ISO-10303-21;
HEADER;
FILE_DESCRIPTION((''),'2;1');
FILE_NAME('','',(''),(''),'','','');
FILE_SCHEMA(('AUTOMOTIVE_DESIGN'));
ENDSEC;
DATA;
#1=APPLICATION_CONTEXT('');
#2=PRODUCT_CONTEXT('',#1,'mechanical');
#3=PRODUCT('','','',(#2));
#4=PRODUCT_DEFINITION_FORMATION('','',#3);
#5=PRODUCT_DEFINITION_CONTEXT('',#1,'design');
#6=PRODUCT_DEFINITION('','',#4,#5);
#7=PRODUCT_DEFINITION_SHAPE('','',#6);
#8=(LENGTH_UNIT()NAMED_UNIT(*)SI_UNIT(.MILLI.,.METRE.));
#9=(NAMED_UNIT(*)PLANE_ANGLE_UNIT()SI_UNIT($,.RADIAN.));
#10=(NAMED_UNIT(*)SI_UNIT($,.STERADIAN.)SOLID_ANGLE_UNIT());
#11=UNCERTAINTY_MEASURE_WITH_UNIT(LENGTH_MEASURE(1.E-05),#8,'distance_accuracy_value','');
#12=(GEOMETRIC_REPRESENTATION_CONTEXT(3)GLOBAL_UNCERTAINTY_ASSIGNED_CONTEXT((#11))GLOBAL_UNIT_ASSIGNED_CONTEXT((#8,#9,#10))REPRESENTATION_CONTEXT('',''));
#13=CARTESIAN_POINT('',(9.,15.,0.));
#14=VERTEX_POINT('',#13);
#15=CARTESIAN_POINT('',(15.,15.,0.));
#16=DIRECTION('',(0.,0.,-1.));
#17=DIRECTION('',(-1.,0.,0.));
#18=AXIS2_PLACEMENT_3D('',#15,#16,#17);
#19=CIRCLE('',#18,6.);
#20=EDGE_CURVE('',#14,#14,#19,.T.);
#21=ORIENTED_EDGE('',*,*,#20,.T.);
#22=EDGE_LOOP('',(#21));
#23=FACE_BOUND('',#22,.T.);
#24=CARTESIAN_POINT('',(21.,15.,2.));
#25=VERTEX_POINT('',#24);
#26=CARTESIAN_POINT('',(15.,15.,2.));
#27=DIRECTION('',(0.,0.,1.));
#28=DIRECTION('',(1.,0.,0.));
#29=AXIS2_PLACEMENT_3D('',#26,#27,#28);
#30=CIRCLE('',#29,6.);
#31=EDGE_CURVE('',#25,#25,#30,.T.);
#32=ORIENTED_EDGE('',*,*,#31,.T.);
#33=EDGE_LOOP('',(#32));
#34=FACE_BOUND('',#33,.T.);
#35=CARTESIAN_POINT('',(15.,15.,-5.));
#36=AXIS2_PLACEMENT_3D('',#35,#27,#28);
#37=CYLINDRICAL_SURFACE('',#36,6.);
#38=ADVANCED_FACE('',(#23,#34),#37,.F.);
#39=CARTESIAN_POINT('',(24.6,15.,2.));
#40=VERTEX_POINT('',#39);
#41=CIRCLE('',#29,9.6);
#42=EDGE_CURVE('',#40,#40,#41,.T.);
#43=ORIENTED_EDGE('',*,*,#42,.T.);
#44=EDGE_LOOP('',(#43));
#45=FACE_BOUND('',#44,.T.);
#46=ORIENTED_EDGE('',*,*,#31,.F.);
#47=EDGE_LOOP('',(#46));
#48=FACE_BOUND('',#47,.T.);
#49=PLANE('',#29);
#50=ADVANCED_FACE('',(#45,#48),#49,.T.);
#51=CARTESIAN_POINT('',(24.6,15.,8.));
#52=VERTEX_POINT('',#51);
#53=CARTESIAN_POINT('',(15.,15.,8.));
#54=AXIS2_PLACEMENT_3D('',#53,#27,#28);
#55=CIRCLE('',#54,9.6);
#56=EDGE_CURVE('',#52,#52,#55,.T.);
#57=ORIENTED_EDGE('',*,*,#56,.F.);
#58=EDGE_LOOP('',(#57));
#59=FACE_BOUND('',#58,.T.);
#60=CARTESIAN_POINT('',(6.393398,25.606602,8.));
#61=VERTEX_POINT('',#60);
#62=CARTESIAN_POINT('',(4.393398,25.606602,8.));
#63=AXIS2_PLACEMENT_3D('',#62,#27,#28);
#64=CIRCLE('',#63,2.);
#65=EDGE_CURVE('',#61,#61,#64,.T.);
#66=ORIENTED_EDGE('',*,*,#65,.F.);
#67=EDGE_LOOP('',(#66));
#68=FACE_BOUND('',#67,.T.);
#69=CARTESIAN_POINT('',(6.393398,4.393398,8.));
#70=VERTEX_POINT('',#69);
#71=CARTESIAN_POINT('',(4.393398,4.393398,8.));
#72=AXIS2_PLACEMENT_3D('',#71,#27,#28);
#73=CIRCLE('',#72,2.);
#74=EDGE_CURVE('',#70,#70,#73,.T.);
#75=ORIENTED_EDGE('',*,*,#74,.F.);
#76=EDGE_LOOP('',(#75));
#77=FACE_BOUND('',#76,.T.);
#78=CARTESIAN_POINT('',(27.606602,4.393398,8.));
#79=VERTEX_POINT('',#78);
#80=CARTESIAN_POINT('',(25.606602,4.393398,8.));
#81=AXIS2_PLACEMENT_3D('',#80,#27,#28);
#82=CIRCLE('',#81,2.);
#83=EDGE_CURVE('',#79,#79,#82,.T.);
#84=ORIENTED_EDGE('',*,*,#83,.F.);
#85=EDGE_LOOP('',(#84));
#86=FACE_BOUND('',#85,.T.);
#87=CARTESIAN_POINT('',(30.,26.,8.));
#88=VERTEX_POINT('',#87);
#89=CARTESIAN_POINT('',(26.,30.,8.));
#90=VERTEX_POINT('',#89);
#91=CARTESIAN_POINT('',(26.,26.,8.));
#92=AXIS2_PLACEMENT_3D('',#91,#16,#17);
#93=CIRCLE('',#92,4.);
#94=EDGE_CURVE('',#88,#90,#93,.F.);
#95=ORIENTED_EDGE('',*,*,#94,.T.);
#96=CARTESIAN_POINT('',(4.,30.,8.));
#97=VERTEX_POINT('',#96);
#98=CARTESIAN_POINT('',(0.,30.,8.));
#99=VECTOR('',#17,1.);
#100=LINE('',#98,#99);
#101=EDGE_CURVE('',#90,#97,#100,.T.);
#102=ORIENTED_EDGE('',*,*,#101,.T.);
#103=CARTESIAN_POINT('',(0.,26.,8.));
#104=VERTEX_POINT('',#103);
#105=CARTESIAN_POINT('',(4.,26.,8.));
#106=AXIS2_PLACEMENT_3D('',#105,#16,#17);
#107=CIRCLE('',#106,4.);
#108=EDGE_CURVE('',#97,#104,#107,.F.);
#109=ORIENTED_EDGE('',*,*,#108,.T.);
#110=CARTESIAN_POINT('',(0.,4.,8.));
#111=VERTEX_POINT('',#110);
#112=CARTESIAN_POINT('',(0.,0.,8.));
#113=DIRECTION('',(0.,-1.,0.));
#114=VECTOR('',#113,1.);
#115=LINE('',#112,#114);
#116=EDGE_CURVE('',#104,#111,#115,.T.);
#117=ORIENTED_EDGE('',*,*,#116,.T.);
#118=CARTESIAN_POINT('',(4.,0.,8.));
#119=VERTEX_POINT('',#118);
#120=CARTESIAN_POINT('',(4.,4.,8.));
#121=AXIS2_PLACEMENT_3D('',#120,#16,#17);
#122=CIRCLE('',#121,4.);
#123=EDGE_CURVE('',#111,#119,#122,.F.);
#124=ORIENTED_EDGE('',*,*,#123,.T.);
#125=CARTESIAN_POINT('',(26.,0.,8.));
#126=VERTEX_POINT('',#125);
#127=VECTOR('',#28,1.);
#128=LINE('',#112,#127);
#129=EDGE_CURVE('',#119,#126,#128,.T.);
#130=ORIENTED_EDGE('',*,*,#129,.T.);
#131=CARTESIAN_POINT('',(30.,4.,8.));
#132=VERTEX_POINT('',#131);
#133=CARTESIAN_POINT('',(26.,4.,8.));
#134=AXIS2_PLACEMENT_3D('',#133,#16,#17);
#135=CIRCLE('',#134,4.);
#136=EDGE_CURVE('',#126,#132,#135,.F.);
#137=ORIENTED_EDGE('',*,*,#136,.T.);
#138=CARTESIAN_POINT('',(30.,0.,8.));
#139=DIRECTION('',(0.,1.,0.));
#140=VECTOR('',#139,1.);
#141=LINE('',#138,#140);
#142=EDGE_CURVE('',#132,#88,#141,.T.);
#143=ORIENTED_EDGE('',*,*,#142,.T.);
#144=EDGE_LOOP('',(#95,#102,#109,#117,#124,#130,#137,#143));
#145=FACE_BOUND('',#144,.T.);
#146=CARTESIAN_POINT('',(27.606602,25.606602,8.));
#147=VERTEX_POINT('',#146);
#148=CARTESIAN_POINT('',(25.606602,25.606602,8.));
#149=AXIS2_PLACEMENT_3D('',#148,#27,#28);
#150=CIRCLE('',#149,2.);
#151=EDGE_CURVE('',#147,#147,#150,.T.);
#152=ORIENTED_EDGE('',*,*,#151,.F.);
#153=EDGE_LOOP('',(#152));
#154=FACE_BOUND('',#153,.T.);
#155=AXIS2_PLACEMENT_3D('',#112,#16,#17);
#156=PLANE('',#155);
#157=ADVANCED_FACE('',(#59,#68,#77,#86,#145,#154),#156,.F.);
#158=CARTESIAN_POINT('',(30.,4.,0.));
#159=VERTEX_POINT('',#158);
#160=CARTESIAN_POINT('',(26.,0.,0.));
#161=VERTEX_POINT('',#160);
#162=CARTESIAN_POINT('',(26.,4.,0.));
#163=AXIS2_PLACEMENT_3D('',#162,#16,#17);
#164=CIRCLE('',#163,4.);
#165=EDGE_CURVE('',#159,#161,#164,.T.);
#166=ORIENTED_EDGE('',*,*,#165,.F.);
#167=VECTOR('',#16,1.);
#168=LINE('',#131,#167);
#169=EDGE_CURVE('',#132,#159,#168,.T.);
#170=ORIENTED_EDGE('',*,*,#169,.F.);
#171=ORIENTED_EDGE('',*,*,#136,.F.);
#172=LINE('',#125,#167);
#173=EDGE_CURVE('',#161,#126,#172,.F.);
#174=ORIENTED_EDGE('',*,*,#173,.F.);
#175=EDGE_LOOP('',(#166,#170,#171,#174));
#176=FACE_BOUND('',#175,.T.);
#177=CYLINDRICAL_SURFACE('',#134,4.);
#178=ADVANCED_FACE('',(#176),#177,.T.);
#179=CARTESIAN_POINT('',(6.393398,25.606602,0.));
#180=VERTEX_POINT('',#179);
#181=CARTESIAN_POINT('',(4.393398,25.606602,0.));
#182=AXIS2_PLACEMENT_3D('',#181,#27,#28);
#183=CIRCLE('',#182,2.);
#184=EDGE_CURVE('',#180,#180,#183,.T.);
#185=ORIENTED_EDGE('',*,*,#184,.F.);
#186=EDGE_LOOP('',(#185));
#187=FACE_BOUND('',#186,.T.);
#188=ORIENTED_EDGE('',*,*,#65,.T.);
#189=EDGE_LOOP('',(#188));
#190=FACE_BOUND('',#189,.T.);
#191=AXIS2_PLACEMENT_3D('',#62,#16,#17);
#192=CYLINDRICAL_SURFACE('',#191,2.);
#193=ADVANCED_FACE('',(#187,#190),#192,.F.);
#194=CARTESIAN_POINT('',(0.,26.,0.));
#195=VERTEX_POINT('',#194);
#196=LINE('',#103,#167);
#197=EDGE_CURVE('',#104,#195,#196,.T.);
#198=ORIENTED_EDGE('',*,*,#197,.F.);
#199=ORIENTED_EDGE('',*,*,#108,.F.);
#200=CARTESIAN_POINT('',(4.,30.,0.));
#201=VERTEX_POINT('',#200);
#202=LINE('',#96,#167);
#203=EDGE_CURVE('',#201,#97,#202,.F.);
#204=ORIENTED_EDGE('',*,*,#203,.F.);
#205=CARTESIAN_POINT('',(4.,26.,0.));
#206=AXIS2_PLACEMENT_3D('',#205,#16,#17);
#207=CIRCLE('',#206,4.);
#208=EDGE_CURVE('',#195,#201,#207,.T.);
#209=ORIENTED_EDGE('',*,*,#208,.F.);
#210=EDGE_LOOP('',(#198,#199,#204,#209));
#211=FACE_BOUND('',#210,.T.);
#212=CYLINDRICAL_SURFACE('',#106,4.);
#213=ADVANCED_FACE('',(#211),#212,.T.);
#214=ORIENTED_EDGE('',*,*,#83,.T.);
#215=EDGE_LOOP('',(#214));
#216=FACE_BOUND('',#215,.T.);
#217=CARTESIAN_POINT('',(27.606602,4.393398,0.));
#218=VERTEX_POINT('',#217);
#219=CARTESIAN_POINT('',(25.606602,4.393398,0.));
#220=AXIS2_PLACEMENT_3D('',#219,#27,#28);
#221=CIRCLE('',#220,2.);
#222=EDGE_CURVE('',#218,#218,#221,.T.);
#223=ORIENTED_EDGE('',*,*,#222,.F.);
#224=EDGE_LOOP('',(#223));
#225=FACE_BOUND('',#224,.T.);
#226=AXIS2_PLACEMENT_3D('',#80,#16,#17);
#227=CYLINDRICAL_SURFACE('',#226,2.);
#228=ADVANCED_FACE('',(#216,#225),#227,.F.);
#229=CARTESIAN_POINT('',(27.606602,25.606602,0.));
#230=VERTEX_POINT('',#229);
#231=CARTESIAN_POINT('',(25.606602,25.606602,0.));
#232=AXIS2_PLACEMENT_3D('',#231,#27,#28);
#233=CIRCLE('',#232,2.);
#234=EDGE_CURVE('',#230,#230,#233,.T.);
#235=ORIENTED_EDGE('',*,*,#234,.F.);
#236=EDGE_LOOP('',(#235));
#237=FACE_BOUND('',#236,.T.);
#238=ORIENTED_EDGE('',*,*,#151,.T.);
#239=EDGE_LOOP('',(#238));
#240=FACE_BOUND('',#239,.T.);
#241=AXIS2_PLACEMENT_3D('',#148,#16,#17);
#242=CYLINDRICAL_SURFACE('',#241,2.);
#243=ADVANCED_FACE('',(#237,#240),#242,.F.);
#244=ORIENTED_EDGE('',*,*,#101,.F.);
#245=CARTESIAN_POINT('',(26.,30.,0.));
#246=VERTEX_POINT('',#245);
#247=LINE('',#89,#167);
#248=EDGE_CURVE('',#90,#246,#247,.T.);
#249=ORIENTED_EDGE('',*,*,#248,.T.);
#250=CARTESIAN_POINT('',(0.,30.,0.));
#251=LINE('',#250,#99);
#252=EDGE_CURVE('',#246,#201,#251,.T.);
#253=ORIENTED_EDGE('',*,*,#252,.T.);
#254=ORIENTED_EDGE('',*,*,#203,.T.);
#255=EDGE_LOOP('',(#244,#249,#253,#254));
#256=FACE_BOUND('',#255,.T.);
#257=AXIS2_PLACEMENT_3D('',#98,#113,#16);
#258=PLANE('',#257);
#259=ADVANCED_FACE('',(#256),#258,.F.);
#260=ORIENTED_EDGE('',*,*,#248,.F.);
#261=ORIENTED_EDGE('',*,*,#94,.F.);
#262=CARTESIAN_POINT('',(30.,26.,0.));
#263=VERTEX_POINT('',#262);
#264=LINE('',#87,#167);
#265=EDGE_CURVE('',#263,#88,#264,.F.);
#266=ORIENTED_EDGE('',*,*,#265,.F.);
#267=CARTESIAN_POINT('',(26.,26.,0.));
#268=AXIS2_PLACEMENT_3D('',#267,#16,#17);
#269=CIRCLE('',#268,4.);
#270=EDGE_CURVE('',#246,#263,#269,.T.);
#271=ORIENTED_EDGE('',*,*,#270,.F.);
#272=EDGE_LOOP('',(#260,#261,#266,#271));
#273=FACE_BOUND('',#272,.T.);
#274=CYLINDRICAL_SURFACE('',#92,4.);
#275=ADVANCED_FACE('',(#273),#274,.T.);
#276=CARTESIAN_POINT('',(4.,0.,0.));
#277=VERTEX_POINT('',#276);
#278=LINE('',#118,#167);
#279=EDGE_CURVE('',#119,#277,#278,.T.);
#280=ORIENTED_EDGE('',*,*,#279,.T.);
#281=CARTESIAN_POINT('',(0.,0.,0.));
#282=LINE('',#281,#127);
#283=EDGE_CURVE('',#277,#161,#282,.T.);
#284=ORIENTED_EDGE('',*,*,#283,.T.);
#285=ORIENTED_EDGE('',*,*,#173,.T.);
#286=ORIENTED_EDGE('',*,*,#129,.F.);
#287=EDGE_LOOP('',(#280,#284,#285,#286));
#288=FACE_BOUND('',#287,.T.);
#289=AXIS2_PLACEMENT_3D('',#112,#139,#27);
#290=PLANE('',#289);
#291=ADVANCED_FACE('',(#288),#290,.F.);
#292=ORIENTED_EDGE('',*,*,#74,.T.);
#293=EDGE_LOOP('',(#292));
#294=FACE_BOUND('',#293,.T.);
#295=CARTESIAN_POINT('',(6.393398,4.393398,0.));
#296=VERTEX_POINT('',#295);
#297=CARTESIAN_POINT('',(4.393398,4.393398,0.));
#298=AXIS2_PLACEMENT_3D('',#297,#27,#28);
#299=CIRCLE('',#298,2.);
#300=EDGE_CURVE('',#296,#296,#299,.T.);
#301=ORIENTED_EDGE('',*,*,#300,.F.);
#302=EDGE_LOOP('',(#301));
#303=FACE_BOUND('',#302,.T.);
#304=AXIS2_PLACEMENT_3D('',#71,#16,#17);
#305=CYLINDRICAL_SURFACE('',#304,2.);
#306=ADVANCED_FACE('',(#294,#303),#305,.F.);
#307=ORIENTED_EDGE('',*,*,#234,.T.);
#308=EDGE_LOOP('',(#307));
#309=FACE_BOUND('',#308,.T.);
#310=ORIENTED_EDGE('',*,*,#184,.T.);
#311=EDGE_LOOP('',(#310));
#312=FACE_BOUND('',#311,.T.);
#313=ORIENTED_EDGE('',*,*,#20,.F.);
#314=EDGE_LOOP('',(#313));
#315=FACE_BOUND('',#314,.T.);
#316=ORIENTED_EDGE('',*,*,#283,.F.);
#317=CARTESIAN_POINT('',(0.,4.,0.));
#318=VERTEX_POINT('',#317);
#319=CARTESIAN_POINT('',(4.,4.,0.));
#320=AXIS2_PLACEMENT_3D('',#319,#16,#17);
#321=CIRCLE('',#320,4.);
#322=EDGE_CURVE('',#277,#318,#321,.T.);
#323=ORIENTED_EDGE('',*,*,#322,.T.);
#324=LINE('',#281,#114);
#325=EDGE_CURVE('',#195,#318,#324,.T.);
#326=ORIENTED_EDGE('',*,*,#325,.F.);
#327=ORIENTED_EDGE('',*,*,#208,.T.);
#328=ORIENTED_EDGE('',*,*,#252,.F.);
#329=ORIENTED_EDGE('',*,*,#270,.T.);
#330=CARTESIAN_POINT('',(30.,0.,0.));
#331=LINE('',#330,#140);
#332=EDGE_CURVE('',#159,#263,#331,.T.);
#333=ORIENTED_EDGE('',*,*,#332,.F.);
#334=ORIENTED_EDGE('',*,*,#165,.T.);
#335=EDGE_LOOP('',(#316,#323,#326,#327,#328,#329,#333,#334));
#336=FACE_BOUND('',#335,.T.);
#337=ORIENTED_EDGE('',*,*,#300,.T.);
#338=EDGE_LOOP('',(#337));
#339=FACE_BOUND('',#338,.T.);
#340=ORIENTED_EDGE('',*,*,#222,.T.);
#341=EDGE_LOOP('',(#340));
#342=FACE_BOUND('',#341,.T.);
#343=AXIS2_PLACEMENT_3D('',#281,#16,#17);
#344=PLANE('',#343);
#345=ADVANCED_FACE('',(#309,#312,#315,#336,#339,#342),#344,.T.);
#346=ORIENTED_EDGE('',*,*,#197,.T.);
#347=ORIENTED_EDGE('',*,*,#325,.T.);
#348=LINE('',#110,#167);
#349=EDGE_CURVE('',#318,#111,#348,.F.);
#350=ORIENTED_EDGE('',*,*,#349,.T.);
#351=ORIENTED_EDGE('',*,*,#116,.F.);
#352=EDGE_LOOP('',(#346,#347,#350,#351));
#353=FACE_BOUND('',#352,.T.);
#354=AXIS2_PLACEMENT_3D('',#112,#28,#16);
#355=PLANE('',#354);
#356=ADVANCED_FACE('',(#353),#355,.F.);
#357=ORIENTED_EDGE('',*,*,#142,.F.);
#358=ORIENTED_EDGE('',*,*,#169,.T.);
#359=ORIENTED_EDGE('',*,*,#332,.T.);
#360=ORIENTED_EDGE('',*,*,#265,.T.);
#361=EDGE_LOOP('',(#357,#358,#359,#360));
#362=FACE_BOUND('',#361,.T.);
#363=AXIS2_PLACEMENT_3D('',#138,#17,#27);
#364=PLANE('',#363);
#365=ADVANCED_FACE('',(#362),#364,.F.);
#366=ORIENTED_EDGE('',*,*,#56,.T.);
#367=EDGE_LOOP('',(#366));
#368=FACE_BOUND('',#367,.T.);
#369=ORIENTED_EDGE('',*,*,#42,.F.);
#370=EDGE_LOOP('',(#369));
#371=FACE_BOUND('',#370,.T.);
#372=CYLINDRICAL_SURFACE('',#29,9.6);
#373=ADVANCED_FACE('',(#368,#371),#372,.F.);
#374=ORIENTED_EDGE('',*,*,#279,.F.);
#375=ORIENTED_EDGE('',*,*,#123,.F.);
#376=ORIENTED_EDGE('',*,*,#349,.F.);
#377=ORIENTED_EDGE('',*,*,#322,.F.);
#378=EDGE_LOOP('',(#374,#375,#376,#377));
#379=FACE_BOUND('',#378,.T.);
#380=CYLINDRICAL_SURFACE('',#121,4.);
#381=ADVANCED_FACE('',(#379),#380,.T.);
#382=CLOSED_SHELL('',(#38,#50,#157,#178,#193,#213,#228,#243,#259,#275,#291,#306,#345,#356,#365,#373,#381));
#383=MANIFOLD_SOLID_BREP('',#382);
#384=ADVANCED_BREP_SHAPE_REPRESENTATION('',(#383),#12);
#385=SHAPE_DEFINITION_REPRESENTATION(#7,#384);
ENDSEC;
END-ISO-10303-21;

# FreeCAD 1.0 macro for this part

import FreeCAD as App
import Part
import Sketcher
from FreeCAD import Vector


def edges_at(feature, points):
    """Names of the edges that pass closest to the given points."""
    edges = feature.Shape.Edges
    near = lambda p: min(range(len(edges)), key=lambda i: edges[i].distToShape(Part.Vertex(*p))[0])
    return sorted({f"Edge{near(p) + 1}" for p in points})


def add_polygon(sketch, points):
    """Adds a closed chain of lines whose ends are joined by coincident constraints."""
    first, n = sketch.GeometryCount, len(points)
    for a, b in zip(points, points[1:] + points[:1]):
        sketch.addGeometry(Part.LineSegment(App.Vector(*a, 0), App.Vector(*b, 0)), False)
    for i in range(n):
        sketch.addConstraint(Sketcher.Constraint("Coincident", first + i, 2, first + (i + 1) % n, 1))

doc = App.newDocument("Part")
params = doc.addObject("Spreadsheet::Sheet", "Params")
for row, (alias, value) in enumerate([
    ("sketch1_diameter", "4 mm"),
    ("sketch1_width", "30 mm"),
    ("pad1_length", "8 mm"),
    ("sketch2_diameter", "19.2 mm"),
    ("pocket1_length", "6 mm"),
    ("sketch3_diameter", "12 mm"),
    ("pocket2_length", "7 mm"),
    ("fillet_radius", "4 mm"),
], start=1):
    params.set(f"A{row}", alias)
    params.set(f"B{row}", "=" + value)
    params.setAlias(f"B{row}", alias)

body = doc.addObject("PartDesign::Body", "Body")

# Sketch on XY plane
sketch1 = body.newObject("Sketcher::SketchObject", "Sketch")
sketch1.AttachmentSupport = (doc.getObject("XY_Plane"), [""])
sketch1.MapMode = "FlatFace"
add_polygon(sketch1, [(0, 30), (0, 0), (30, 0), (30, 30)])  # lines 0-3
sketch1.addGeometry(Part.Circle(Vector(4.393398, 4.393398, 0), Vector(0, 0, 1), 2), False)  # 4
sketch1.addGeometry(Part.Circle(Vector(25.606602, 4.393398, 0), Vector(0, 0, 1), 2), False)  # 5
sketch1.addGeometry(Part.Circle(Vector(4.393398, 25.606602, 0), Vector(0, 0, 1), 2), False)  # 6
sketch1.addGeometry(Part.Circle(Vector(25.606602, 25.606602, 0), Vector(0, 0, 1), 2), False)  # 7
sketch1.addConstraint(Sketcher.Constraint("Vertical", 0))
sketch1.addConstraint(Sketcher.Constraint("Horizontal", 1))
sketch1.addConstraint(Sketcher.Constraint("Vertical", 2))
sketch1.addConstraint(Sketcher.Constraint("Horizontal", 3))
sketch1.addConstraint(Sketcher.Constraint("Coincident", 0, 2, -1, 1))
sketch1.addConstraint(Sketcher.Constraint("Equal", 4, 5))
sketch1.addConstraint(Sketcher.Constraint("Equal", 5, 6))
sketch1.addConstraint(Sketcher.Constraint("Equal", 6, 7))
sketch1.addConstraint(Sketcher.Constraint("Horizontal", 4, 3, 5, 3))
sketch1.addConstraint(Sketcher.Constraint("Horizontal", 6, 3, 7, 3))
sketch1.addConstraint(Sketcher.Constraint("Vertical", 4, 3, 6, 3))
sketch1.addConstraint(Sketcher.Constraint("Vertical", 5, 3, 7, 3))
sketch1.addConstraint(Sketcher.Constraint("Equal", 3, 0))
sketch1.addConstraint(Sketcher.Constraint("Diameter", 4, 4.0))
sketch1.addConstraint(Sketcher.Constraint("DistanceX", 1, 1, 1, 2, 30.0))
sketch1.addConstraint(Sketcher.Constraint("DistanceX", -1, 1, 4, 3, 4.393398))
sketch1.addConstraint(Sketcher.Constraint("DistanceY", -1, 1, 4, 3, 4.393398))
sketch1.addConstraint(Sketcher.Constraint("DistanceX", -1, 1, 5, 3, 25.606602))
sketch1.addConstraint(Sketcher.Constraint("DistanceY", -1, 1, 6, 3, 25.606602))
sketch1.setExpression("Constraints[17]", "Params.sketch1_diameter")
sketch1.setExpression("Constraints[18]", "Params.sketch1_width")
pad1 = body.newObject("PartDesign::Pad", "Pad")
pad1.Profile = sketch1
pad1.setExpression("Length", "Params.pad1_length")

# Sketch on XY plane
sketch2 = body.newObject("Sketcher::SketchObject", "Sketch001")
sketch2.AttachmentSupport = (doc.getObject("XY_Plane"), [""])
sketch2.MapMode = "FlatFace"
sketch2.AttachmentOffset = App.Placement(Vector(0, 0, 8), App.Rotation())
sketch2.addGeometry(Part.Circle(Vector(15, 15, 0), Vector(0, 0, 1), 9.6), False)
sketch2.addConstraint(Sketcher.Constraint("Diameter", 0, 19.2))
sketch2.addConstraint(Sketcher.Constraint("DistanceX", -1, 1, 0, 3, 15.0))
sketch2.addConstraint(Sketcher.Constraint("DistanceY", -1, 1, 0, 3, 15.0))
sketch2.setExpression("Constraints[0]", "Params.sketch2_diameter")
pocket1 = body.newObject("PartDesign::Pocket", "Pocket")
pocket1.Profile = sketch2
pocket1.setExpression("Length", "Params.pocket1_length")

# Sketch on XY plane
sketch3 = body.newObject("Sketcher::SketchObject", "Sketch002")
sketch3.AttachmentSupport = (doc.getObject("XY_Plane"), [""])
sketch3.MapMode = "FlatFace"
sketch3.AttachmentOffset = App.Placement(Vector(0, 0, 2), App.Rotation())
sketch3.addGeometry(Part.Circle(Vector(15, 15, 0), Vector(0, 0, 1), 6), False)
sketch3.addConstraint(Sketcher.Constraint("Diameter", 0, 12.0))
sketch3.addConstraint(Sketcher.Constraint("DistanceX", -1, 1, 0, 3, 15.0))
sketch3.addConstraint(Sketcher.Constraint("DistanceY", -1, 1, 0, 3, 15.0))
sketch3.setExpression("Constraints[0]", "Params.sketch3_diameter")
pocket2 = body.newObject("PartDesign::Pocket", "Pocket001")
pocket2.Profile = sketch3
pocket2.setExpression("Length", "Params.pocket2_length")
doc.recompute()

fillet = body.newObject("PartDesign::Fillet", "Fillet")
fillet.Base = (pocket2, edges_at(pocket2, [
    (0, 30, 4),
    (30, 30, 4),
    (30, 0, 4),
    (0, 0, 4),
]))
fillet.setExpression("Radius", "Params.fillet_radius")

doc.recompute()
